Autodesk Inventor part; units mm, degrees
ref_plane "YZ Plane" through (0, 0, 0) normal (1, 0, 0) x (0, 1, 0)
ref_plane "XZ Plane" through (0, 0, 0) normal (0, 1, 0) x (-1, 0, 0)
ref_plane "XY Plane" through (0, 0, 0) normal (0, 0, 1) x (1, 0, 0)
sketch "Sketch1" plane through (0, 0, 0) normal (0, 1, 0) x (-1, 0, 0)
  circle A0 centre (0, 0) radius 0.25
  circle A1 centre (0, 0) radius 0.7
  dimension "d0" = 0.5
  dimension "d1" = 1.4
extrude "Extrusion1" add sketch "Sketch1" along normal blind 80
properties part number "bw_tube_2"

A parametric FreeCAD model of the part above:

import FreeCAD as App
import Part
import Sketcher
from FreeCAD import Vector
Q = App.Units.Quantity

doc = App.newDocument("Part")
body = doc.addObject("PartDesign::Body", "Body")

# Sketch on XZ plane
sketch1 = body.newObject("Sketcher::SketchObject", "Sketch")
sketch1.AttachmentSupport = (doc.getObject("XZ_Plane"), [""])
sketch1.MapMode = "FlatFace"
sketch1.addGeometry([
    Part.Circle(Vector(0, 0, 0), Vector(0, 0, 1), 0.7),
    Part.Circle(Vector(0, 0, 0), Vector(0, 0, 1), 0.25),
], False)
sketch1.addConstraint([
    Sketcher.Constraint("Coincident", 0, 3, -1, 1),
    Sketcher.Constraint("Coincident", 1, 3, -1, 1),
    Sketcher.Constraint("Diameter", 0, Q("1.4 mm")),
    Sketcher.Constraint("Diameter", 1, Q("0.5 mm")),
])
pad1 = body.newObject("PartDesign::Pad", "Pad")
pad1.Profile = sketch1
pad1.Length = 80
pad1.Reversed = True

doc.recompute()
